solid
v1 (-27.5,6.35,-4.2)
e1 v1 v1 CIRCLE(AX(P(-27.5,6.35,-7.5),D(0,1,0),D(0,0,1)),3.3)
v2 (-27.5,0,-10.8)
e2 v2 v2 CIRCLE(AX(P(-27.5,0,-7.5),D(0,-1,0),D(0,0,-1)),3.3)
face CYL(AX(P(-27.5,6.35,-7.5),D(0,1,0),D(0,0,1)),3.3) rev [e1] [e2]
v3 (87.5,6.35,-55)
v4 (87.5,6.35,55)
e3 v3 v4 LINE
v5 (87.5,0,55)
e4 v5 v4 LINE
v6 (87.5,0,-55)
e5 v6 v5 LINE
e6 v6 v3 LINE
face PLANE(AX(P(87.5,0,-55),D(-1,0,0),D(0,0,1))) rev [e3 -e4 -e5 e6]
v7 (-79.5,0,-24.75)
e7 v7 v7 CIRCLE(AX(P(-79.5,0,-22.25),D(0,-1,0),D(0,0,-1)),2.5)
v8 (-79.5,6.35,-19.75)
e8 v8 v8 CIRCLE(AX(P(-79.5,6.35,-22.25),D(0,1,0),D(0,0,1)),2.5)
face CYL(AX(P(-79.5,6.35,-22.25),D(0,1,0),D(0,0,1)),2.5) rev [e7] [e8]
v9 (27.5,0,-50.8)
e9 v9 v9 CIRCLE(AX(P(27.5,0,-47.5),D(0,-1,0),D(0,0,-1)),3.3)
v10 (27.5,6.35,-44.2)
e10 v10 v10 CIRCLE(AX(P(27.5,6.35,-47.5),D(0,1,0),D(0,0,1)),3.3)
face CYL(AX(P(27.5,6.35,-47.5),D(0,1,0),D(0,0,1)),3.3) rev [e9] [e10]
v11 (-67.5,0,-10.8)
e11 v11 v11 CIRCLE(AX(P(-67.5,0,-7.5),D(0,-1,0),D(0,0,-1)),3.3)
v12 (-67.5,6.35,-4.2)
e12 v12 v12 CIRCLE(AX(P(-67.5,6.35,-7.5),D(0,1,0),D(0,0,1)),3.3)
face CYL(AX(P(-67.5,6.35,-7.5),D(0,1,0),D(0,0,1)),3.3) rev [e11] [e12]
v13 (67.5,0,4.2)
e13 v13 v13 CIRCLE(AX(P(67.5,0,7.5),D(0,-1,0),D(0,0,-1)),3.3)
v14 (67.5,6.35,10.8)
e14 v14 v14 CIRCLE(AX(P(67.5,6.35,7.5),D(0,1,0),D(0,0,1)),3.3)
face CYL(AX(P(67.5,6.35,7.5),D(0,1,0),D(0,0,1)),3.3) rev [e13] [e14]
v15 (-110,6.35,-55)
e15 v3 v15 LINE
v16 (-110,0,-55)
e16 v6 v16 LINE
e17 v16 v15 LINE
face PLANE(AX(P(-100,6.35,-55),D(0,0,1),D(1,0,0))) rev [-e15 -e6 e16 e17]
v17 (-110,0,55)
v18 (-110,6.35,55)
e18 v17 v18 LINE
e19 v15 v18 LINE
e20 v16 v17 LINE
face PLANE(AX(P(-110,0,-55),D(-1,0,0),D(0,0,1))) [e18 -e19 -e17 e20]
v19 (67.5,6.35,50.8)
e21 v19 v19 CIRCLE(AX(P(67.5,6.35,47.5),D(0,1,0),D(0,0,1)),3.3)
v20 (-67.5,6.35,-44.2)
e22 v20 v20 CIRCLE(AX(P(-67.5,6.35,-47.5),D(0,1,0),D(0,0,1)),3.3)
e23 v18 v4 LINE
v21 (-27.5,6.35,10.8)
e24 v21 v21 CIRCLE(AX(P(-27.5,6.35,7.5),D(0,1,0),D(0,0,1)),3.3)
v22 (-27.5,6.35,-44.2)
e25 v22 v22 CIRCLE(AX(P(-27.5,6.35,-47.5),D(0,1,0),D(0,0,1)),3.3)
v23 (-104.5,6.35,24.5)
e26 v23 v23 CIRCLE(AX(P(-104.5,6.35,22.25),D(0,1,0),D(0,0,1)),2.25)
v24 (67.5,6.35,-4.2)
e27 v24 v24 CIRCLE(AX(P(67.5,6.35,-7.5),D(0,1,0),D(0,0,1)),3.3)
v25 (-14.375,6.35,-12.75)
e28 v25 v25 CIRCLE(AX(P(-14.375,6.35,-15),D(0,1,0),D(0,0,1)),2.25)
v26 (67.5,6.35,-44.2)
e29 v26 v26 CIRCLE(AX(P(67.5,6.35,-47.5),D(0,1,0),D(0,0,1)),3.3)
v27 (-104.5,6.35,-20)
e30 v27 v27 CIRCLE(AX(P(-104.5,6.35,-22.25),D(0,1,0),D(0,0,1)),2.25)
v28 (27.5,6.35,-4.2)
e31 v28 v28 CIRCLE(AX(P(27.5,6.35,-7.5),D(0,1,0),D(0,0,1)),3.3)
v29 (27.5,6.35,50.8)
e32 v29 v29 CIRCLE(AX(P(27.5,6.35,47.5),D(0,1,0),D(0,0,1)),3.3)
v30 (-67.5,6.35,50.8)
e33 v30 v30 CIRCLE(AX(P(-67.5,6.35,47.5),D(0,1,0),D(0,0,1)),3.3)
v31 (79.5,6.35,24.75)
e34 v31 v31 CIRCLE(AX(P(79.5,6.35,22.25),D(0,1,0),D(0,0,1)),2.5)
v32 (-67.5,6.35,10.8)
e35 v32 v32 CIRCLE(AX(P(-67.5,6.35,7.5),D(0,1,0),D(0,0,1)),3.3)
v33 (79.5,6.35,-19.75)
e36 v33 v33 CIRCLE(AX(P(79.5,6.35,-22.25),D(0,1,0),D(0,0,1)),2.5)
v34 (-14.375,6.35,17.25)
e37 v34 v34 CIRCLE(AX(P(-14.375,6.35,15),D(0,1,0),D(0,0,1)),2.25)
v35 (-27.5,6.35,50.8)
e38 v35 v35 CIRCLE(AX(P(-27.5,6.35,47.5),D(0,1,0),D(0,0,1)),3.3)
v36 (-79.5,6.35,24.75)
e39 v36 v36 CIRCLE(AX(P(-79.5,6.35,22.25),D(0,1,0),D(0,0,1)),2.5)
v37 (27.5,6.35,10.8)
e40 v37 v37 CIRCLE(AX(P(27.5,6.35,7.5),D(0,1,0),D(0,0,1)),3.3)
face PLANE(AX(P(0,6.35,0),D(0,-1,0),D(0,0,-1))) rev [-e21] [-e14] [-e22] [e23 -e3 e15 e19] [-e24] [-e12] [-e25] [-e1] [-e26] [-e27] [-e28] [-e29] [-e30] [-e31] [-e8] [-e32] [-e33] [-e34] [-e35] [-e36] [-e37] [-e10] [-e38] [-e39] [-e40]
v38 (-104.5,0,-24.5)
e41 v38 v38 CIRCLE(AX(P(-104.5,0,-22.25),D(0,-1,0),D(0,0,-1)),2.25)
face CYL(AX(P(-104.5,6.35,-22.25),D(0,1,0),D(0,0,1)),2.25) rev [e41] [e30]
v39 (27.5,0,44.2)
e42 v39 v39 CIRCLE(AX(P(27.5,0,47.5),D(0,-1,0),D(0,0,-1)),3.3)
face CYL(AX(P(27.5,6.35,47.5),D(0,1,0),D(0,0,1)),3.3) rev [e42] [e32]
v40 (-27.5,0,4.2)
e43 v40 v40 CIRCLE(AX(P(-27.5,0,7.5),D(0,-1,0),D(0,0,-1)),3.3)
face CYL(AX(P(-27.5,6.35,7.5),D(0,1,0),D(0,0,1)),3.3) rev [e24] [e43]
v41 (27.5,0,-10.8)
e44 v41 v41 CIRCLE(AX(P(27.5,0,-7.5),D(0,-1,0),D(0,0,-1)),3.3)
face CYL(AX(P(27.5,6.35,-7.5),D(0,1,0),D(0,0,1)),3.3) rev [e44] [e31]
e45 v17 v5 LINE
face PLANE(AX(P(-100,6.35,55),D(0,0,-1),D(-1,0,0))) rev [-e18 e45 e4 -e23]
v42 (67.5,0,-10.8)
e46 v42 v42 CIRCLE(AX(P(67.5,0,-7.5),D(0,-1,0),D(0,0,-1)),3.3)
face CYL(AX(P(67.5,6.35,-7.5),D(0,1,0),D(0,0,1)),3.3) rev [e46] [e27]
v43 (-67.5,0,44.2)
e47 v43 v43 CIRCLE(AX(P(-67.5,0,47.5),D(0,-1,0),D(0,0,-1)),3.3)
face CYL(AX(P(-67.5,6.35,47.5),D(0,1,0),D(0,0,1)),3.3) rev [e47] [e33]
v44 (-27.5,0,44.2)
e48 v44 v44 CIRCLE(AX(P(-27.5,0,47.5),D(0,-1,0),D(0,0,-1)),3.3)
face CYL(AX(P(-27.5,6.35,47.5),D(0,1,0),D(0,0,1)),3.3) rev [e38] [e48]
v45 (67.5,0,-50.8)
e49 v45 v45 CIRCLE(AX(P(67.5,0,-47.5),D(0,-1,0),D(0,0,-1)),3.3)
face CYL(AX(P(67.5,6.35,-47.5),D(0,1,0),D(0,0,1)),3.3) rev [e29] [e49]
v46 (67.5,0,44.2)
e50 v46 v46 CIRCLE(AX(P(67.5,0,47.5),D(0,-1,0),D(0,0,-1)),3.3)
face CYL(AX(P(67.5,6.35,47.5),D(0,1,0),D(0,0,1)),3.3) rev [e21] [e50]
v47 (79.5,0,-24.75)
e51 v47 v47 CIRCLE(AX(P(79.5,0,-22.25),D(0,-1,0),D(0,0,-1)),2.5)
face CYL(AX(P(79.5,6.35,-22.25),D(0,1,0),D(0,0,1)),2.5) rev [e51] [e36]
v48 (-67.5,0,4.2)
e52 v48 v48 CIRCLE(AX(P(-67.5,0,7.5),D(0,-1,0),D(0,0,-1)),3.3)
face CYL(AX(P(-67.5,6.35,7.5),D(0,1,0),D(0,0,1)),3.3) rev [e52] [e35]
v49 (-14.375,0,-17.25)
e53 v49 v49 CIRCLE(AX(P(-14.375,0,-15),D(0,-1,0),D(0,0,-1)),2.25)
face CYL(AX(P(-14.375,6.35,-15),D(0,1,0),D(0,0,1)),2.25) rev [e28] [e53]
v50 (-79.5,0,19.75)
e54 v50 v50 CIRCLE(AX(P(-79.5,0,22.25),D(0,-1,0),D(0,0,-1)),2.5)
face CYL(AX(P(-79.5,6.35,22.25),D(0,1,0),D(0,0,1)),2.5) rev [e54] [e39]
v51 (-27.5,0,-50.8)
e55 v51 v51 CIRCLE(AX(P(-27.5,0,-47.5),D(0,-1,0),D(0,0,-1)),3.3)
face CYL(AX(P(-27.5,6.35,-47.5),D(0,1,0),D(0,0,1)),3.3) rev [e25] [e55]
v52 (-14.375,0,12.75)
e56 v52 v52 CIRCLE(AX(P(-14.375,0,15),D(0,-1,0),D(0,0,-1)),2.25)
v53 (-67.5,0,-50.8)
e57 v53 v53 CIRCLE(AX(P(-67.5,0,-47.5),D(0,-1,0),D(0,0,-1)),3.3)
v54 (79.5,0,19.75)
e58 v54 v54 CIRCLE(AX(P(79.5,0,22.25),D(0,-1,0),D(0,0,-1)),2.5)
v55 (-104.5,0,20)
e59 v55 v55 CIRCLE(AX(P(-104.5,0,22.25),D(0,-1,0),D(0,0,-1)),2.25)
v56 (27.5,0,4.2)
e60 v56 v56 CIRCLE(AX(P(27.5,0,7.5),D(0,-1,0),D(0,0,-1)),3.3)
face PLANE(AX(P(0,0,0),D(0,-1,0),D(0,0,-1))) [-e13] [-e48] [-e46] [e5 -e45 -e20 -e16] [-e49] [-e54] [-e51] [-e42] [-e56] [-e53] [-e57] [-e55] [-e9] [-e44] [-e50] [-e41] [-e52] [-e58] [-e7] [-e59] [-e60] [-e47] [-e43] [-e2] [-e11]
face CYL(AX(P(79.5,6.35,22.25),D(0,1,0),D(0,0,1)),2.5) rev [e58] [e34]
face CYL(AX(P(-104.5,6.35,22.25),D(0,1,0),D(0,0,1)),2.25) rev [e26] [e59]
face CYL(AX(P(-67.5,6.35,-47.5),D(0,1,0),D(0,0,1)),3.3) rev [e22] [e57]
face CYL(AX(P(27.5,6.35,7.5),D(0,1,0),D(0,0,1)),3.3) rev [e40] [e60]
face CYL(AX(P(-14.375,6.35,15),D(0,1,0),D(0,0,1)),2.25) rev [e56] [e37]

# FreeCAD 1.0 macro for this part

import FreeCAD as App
import Part
import Sketcher

V = App.Vector

doc = App.newDocument("Part")
body = doc.addObject("PartDesign::Body", "Body")

sketch1 = doc.addObject("Sketcher::SketchObject", "Sketch")
body.addObject(sketch1)
sketch1.AttachmentSupport = (doc.XZ_Plane, [""])
sketch1.MapMode = "FlatFace"
sketch1.addGeometry([
    Part.LineSegment(V(-100, -55, 0), V(-100, 55, 0)),
    Part.LineSegment(V(-100, 55, 0), V(100, 55, 0)),
    Part.LineSegment(V(100, 55, 0), V(100, -55, 0)),
    Part.LineSegment(V(100, -55, 0), V(-100, -55, 0)),
], False)
sketch1.addConstraint([
    Sketcher.Constraint("Coincident", 0, 2, 1, 1),
    Sketcher.Constraint("Coincident", 1, 2, 2, 1),
    Sketcher.Constraint("Coincident", 2, 2, 3, 1),
    Sketcher.Constraint("Coincident", 3, 2, 0, 1),
    Sketcher.Constraint("Vertical", 0),
    Sketcher.Constraint("Horizontal", 1),
    Sketcher.Constraint("Vertical", 2),
    Sketcher.Constraint("Horizontal", 3),
    Sketcher.Constraint("Symmetric", 0, 2, 2, 2, -1, 1),
    Sketcher.Constraint("DistanceX", 1, 1, 1, 2, 200.0),
    Sketcher.Constraint("DistanceY", 0, 1, 0, 2, 110.0),
])
pad1 = doc.addObject("PartDesign::Pad", "Pad")
body.addObject(pad1)
pad1.Profile = sketch1
pad1.Length = 6.35
pad1.Reversed = True

sketch2 = doc.addObject("Sketcher::SketchObject", "Sketch001")
body.addObject(sketch2)
sketch2.AttachmentSupport = (doc.XZ_Plane, [""])
sketch2.MapMode = "FlatFace"
sketch2.AttachmentOffset = App.Placement(V(0, 0, -6.35), App.Rotation())
sketch2.addGeometry([
    Part.Circle(V(-67.5, -47.5, 0), V(0, 0, 1), 3.3),
    Part.Circle(V(-27.5, -47.5, 0), V(0, 0, 1), 3.3),
    Part.Circle(V(-27.5, -7.5, 0), V(0, 0, 1), 3.3),
    Part.Circle(V(-67.5, -7.5, 0), V(0, 0, 1), 3.3),
    Part.Circle(V(-67.5, 7.5, 0), V(0, 0, 1), 3.3),
    Part.Circle(V(-27.5, 7.5, 0), V(0, 0, 1), 3.3),
    Part.Circle(V(-27.5, 47.5, 0), V(0, 0, 1), 3.3),
    Part.Circle(V(-67.5, 47.5, 0), V(0, 0, 1), 3.3),
    Part.Circle(V(27.5, 47.5, 0), V(0, 0, 1), 3.3),
    Part.Circle(V(27.5, 7.5, 0), V(0, 0, 1), 3.3),
    Part.Circle(V(27.5, -7.5, 0), V(0, 0, 1), 3.3),
    Part.Circle(V(27.5, -47.5, 0), V(0, 0, 1), 3.3),
    Part.Circle(V(67.5, -47.5, 0), V(0, 0, 1), 3.3),
    Part.Circle(V(67.5, -7.5, 0), V(0, 0, 1), 3.3),
    Part.Circle(V(67.5, 7.5, 0), V(0, 0, 1), 3.3),
    Part.Circle(V(67.5, 47.5, 0), V(0, 0, 1), 3.3),
], False)
sketch2.addConstraint([
    Sketcher.Constraint("Equal", 0, 1),
    Sketcher.Constraint("Equal", 1, 2),
    Sketcher.Constraint("Equal", 2, 3),
    Sketcher.Constraint("Equal", 3, 4),
    Sketcher.Constraint("Equal", 4, 5),
    Sketcher.Constraint("Equal", 5, 6),
    Sketcher.Constraint("Equal", 6, 7),
    Sketcher.Constraint("Equal", 7, 8),
    Sketcher.Constraint("Equal", 8, 9),
    Sketcher.Constraint("Equal", 9, 10),
    Sketcher.Constraint("Equal", 10, 11),
    Sketcher.Constraint("Equal", 11, 12),
    Sketcher.Constraint("Equal", 12, 13),
    Sketcher.Constraint("Equal", 13, 14),
    Sketcher.Constraint("Equal", 14, 15),
    Sketcher.Constraint("Symmetric", 1, 3, 8, 3, -1, 1),
    Sketcher.Constraint("Symmetric", 2, 3, 9, 3, -1, 1),
    Sketcher.Constraint("Symmetric", 5, 3, 10, 3, -1, 1),
    Sketcher.Constraint("Symmetric", 6, 3, 11, 3, -1, 1),
    Sketcher.Constraint("Symmetric", 7, 3, 12, 3, -1, 1),
    Sketcher.Constraint("Symmetric", 4, 3, 13, 3, -1, 1),
    Sketcher.Constraint("Symmetric", 3, 3, 14, 3, -1, 1),
    Sketcher.Constraint("Symmetric", 0, 3, 15, 3, -1, 1),
    Sketcher.Constraint("Symmetric", 6, 3, 8, 3, -2),
    Sketcher.Constraint("Symmetric", 5, 3, 9, 3, -2),
    Sketcher.Constraint("Symmetric", 0, 3, 12, 3, -2),
    Sketcher.Constraint("Symmetric", 3, 3, 13, 3, -2),
    Sketcher.Constraint("Horizontal", 0, 3, 1, 3),
    Sketcher.Constraint("Horizontal", 2, 3, 3, 3),
    Sketcher.Constraint("Vertical", 1, 3, 2, 3),
    Sketcher.Constraint("Vertical", 0, 3, 3, 3),
    Sketcher.Constraint("Diameter", 0, 6.6),
    Sketcher.Constraint("DistanceX", 0, 3, 1, 3, 40.0),
    Sketcher.Constraint("DistanceY", 1, 3, 2, 3, 40.0),
    Sketcher.Constraint("DistanceY", 3, 3, 4, 3, 15.0),
    Sketcher.Constraint("DistanceX", 6, 3, 8, 3, 55.0),
])
doc.recompute()
hole = doc.addObject("PartDesign::Hole", "Hole")
body.addObject(hole)
hole.Profile = sketch2
hole.ThreadType = "None"
hole.Diameter = 6.6
hole.DepthType = "Dimension"
hole.Depth = 12.4
hole.DrillPoint = "Angled"
hole.DrillPointAngle = 118
hole.Reversed = True

sketch3 = doc.addObject("Sketcher::SketchObject", "Sketch002")
body.addObject(sketch3)
sketch3.AttachmentSupport = (doc.XZ_Plane, [""])
sketch3.MapMode = "FlatFace"
sketch3.AttachmentOffset = App.Placement(V(0, 0, -6.35), App.Rotation())
sketch3.addGeometry([
    Part.LineSegment(V(-110, -55, 0), V(-110, 55, 0)),
    Part.LineSegment(V(-110, 55, 0), V(-100, 55, 0)),
    Part.LineSegment(V(-100, 55, 0), V(-100, -55, 0)),
    Part.LineSegment(V(-100, -55, 0), V(-110, -55, 0)),
], False)
sketch3.addConstraint([
    Sketcher.Constraint("Coincident", 0, 2, 1, 1),
    Sketcher.Constraint("Coincident", 1, 2, 2, 1),
    Sketcher.Constraint("Coincident", 2, 2, 3, 1),
    Sketcher.Constraint("Coincident", 3, 2, 0, 1),
    Sketcher.Constraint("Vertical", 0),
    Sketcher.Constraint("Horizontal", 1),
    Sketcher.Constraint("Vertical", 2),
    Sketcher.Constraint("Horizontal", 3),
    Sketcher.Constraint("DistanceX", 1, 1, 1, 2, 10.0),
    Sketcher.Constraint("DistanceY", 0, 1, 0, 2, 110.0),
    Sketcher.Constraint("DistanceX", 0, 2, -1, 1, 110.0),
    Sketcher.Constraint("DistanceY", -1, 1, 0, 2, 55.0),
])
pad2 = doc.addObject("PartDesign::Pad", "Pad001")
body.addObject(pad2)
pad2.Profile = sketch3
pad2.Length = 6.35

sketch4 = doc.addObject("Sketcher::SketchObject", "Sketch003")
body.addObject(sketch4)
sketch4.AttachmentSupport = (doc.XZ_Plane, [""])
sketch4.MapMode = "FlatFace"
sketch4.AttachmentOffset = App.Placement(V(0, 0, -6.35), App.Rotation())
sketch4.addGeometry([
    Part.Circle(V(-79.5, -22.2, 0), V(0, 0, 1), 2.5),
    Part.Circle(V(-79.5, 22.2, 0), V(0, 0, 1), 2.5),
    Part.Circle(V(79.5, 22.2, 0), V(0, 0, 1), 2.5),
    Part.Circle(V(79.5, -22.2, 0), V(0, 0, 1), 2.5),
], False)
sketch4.addConstraint([
    Sketcher.Constraint("Equal", 0, 1),
    Sketcher.Constraint("Equal", 1, 2),
    Sketcher.Constraint("Equal", 2, 3),
    Sketcher.Constraint("Symmetric", 0, 3, 2, 3, -1, 1),
    Sketcher.Constraint("Symmetric", 1, 3, 3, 3, -1, 1),
    Sketcher.Constraint("Symmetric", 1, 3, 2, 3, -2),
    Sketcher.Constraint("Diameter", 0, 5.0),
    Sketcher.Constraint("DistanceX", 1, 3, 2, 3, 159.0),
    Sketcher.Constraint("DistanceY", 0, 3, 1, 3, 44.5),
])
doc.recompute()
hole2 = doc.addObject("PartDesign::Hole", "Hole001")
body.addObject(hole2)
hole2.Profile = sketch4
hole2.ThreadType = "None"
hole2.Diameter = 5
hole2.DepthType = "Dimension"
hole2.Depth = 15
hole2.DrillPoint = "Angled"
hole2.DrillPointAngle = 118
hole2.Reversed = True

sketch5 = doc.addObject("Sketcher::SketchObject", "Sketch004")
body.addObject(sketch5)
sketch5.AttachmentSupport = (doc.XZ_Plane, [""])
sketch5.MapMode = "FlatFace"
sketch5.AttachmentOffset = App.Placement(V(0, 0, -6.35), App.Rotation())
sketch5.addGeometry([
    Part.Circle(V(-104.5, -22.2, 0), V(0, 0, 1), 2.2),
    Part.Circle(V(-104.5, 22.2, 0), V(0, 0, 1), 2.2),
], False)
sketch5.addConstraint([
    Sketcher.Constraint("Equal", 0, 1),
    Sketcher.Constraint("Symmetric", 0, 3, 1, 3, -1),
    Sketcher.Constraint("Diameter", 0, 4.5),
    Sketcher.Constraint("DistanceX", 0, 3, -1, 1, 104.5),
    Sketcher.Constraint("DistanceY", 0, 3, 1, 3, 44.5),
])
doc.recompute()
hole3 = doc.addObject("PartDesign::Hole", "Hole002")
body.addObject(hole3)
hole3.Profile = sketch5
hole3.ThreadType = "None"
hole3.Diameter = 4.5
hole3.DepthType = "Dimension"
hole3.Depth = 15
hole3.DrillPoint = "Angled"
hole3.DrillPointAngle = 118
hole3.Reversed = True

sketch6 = doc.addObject("Sketcher::SketchObject", "Sketch005")
body.addObject(sketch6)
sketch6.AttachmentSupport = (doc.XZ_Plane, [""])
sketch6.MapMode = "FlatFace"
sketch6.AttachmentOffset = App.Placement(V(0, 0, -6.35), App.Rotation())
sketch6.addGeometry([
    Part.Circle(V(-14.4, -15, 0), V(0, 0, 1), 2.2),
    Part.Circle(V(-14.4, 15, 0), V(0, 0, 1), 2.2),
], False)
sketch6.addConstraint([
    Sketcher.Constraint("Equal", 0, 1),
    Sketcher.Constraint("Symmetric", 0, 3, 1, 3, -1),
    Sketcher.Constraint("Diameter", 0, 4.5),
    Sketcher.Constraint("DistanceY", 0, 3, -1, 1, 15.0),
    Sketcher.Constraint("DistanceX", 0, 3, -1, 1, 14.375),
])
doc.recompute()
hole4 = doc.addObject("PartDesign::Hole", "Hole003")
body.addObject(hole4)
hole4.Profile = sketch6
hole4.ThreadType = "None"
hole4.Diameter = 4.5
hole4.DepthType = "Dimension"
hole4.Depth = 15
hole4.DrillPoint = "Angled"
hole4.DrillPointAngle = 118
hole4.Reversed = True

sketch7 = doc.addObject("Sketcher::SketchObject", "Sketch006")
body.addObject(sketch7)
sketch7.AttachmentSupport = (doc.XZ_Plane, [""])
sketch7.MapMode = "FlatFace"
sketch7.AttachmentOffset = App.Placement(V(0, 0, -6.35), App.Rotation())
sketch7.addGeometry([
    Part.LineSegment(V(88, -55, 0), V(88, 55, 0)),
    Part.LineSegment(V(88, 55, 0), V(100, 55, 0)),
    Part.LineSegment(V(100, 55, 0), V(100, -55, 0)),
    Part.LineSegment(V(100, -55, 0), V(88, -55, 0)),
], False)
sketch7.addConstraint([
    Sketcher.Constraint("Coincident", 0, 2, 1, 1),
    Sketcher.Constraint("Coincident", 1, 2, 2, 1),
    Sketcher.Constraint("Coincident", 2, 2, 3, 1),
    Sketcher.Constraint("Coincident", 3, 2, 0, 1),
    Sketcher.Constraint("Vertical", 0),
    Sketcher.Constraint("Horizontal", 1),
    Sketcher.Constraint("Vertical", 2),
    Sketcher.Constraint("Horizontal", 3),
    Sketcher.Constraint("DistanceY", 0, 1, 0, 2, 110.0),
    Sketcher.Constraint("DistanceX", 1, 1, 1, 2, 12.5),
    Sketcher.Constraint("DistanceY", -1, 1, 0, 2, 55.0),
    Sketcher.Constraint("DistanceX", -1, 1, 1, 2, 100.0),
])
pocket1 = doc.addObject("PartDesign::Pocket", "Pocket")
body.addObject(pocket1)
pocket1.Profile = sketch7
pocket1.Length = 6.35
pocket1.Reversed = True

doc.recompute()
